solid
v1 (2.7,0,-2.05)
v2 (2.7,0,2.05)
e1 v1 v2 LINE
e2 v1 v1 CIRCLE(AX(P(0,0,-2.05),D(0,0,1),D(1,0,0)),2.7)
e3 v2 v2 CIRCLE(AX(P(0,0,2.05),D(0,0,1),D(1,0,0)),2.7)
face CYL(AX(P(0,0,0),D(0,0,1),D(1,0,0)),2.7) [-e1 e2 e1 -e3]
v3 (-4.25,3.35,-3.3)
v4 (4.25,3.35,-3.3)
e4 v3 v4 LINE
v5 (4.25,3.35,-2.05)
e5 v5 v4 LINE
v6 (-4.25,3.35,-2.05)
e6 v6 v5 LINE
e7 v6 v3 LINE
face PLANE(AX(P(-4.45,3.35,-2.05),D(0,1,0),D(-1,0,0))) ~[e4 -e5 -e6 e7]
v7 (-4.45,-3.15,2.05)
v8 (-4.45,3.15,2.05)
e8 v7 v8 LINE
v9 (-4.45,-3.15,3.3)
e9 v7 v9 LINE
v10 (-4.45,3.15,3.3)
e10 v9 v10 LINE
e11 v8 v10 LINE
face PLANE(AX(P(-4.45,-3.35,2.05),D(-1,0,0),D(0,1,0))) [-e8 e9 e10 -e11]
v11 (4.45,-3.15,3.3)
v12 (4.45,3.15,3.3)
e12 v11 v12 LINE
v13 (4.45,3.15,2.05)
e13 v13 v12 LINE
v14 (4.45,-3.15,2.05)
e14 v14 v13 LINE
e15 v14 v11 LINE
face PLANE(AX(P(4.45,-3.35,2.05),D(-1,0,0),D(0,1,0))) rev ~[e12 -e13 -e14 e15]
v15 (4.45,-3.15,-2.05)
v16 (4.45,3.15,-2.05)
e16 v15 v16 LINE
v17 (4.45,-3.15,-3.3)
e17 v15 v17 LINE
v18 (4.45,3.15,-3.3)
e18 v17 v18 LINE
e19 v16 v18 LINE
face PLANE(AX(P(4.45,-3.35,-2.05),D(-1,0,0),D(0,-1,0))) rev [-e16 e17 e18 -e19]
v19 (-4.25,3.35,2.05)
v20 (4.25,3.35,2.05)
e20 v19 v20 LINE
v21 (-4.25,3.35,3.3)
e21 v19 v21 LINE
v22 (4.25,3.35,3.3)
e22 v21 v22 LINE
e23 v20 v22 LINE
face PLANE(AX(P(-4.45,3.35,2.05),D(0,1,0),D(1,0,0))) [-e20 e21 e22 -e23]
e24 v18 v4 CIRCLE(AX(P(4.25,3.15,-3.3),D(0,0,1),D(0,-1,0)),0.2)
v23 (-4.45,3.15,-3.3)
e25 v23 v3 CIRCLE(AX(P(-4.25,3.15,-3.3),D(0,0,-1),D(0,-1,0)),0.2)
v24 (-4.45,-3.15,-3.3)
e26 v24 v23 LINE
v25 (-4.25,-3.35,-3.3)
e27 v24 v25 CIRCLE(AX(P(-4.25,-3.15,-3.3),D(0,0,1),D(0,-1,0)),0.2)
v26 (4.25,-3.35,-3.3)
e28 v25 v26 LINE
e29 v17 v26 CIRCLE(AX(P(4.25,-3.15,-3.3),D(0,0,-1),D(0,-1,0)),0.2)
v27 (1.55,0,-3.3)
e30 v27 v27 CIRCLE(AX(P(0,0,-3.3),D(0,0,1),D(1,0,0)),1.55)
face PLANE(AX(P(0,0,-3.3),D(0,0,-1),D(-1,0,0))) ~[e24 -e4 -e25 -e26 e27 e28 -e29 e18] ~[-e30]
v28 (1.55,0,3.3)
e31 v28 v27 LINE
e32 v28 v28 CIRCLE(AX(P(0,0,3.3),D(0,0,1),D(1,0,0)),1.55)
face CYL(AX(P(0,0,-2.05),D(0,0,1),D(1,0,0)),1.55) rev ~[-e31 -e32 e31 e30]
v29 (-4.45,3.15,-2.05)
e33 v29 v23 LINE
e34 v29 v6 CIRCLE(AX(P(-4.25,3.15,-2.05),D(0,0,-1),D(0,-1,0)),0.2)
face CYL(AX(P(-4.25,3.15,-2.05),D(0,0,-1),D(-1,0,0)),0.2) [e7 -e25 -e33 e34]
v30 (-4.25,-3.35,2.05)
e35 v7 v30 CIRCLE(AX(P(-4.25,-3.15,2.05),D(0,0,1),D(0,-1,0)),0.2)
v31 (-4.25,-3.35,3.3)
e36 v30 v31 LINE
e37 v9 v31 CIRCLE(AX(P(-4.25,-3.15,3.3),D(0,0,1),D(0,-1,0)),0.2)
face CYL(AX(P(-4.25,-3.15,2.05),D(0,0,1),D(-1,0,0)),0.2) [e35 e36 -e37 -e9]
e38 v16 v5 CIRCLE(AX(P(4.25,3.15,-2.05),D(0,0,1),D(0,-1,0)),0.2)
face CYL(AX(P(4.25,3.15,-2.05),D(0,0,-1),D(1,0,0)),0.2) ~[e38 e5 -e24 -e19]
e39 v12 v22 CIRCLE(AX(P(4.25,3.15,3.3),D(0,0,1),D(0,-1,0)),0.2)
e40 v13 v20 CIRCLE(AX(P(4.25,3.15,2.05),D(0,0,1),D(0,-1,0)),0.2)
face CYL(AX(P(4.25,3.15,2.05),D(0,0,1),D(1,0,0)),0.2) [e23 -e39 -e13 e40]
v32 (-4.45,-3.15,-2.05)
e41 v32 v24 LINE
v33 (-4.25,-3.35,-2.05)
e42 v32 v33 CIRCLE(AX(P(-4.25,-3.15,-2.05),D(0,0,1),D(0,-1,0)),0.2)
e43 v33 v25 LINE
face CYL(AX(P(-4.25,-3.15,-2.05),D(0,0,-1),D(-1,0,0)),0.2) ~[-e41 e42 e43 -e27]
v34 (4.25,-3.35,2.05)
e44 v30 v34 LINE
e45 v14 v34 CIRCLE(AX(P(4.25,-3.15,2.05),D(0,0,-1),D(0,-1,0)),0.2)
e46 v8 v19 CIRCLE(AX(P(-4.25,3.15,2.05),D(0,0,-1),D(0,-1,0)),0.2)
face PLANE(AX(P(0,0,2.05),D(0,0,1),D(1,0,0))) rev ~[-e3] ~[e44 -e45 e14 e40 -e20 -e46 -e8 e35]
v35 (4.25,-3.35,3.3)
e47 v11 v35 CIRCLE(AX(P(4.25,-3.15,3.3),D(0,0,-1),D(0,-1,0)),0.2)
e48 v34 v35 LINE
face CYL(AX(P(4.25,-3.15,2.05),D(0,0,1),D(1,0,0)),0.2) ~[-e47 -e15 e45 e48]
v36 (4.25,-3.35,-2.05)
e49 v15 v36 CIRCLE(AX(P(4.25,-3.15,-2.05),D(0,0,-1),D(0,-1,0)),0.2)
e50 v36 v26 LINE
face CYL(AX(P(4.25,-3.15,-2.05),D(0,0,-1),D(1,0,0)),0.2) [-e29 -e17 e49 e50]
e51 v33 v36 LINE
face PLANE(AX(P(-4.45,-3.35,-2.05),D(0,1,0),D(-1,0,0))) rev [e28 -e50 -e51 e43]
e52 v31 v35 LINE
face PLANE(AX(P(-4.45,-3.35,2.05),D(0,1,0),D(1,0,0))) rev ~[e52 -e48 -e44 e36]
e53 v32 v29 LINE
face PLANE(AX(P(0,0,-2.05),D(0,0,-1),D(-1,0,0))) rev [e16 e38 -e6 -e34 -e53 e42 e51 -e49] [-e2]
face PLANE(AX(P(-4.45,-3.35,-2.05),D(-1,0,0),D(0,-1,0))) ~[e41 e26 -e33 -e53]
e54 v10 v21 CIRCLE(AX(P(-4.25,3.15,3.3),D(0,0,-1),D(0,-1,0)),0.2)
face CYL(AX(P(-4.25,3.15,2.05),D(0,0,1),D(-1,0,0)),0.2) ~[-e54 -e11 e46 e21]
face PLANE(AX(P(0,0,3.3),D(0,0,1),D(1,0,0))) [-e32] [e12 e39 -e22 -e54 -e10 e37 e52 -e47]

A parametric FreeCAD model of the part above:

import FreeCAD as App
import Part
import Sketcher
from FreeCAD import Vector
Q = App.Units.Quantity


def edges_at(feature, points):
    """Names of the edges that pass closest to the given points."""
    edges = feature.Shape.Edges
    near = lambda p: min(range(len(edges)), key=lambda i: edges[i].distToShape(Part.Vertex(*p))[0])
    return sorted({f"Edge{near(p) + 1}" for p in points})


def add_polygon(sketch, points):
    """Adds a closed chain of lines whose ends are joined by coincident constraints."""
    first, n = sketch.GeometryCount, len(points)
    for a, b in zip(points, points[1:] + points[:1]):
        sketch.addGeometry(Part.LineSegment(App.Vector(*a, 0), App.Vector(*b, 0)), False)
    for i in range(n):
        sketch.addConstraint(Sketcher.Constraint("Coincident", first + i, 2, first + (i + 1) % n, 1))

doc = App.newDocument("Part")
body = doc.addObject("PartDesign::Body", "Body")

# Sketch on XY plane
sketch1 = body.newObject("Sketcher::SketchObject", "Sketch")
sketch1.AttachmentSupport = (doc.getObject("XY_Plane"), [""])
sketch1.MapMode = "FlatFace"
sketch1.addGeometry([
    Part.Circle(Vector(0, 0, 0), Vector(0, 0, 1), 2.7),
    Part.Circle(Vector(0, 0, 0), Vector(0, 0, 1), 1.55),
], False)
sketch1.addConstraint([
    Sketcher.Constraint("Coincident", 0, 3, -1, 1),
    Sketcher.Constraint("Coincident", 1, 3, -1, 1),
    Sketcher.Constraint("Diameter", 0, Q("5.4 mm")),
    Sketcher.Constraint("Diameter", 1, Q("3.1 mm")),
])
pad1 = body.newObject("PartDesign::Pad", "Pad")
pad1.Profile = sketch1
pad1.Length = 2.05

# Sketch on XY plane
sketch2 = body.newObject("Sketcher::SketchObject", "Sketch001")
sketch2.AttachmentSupport = (doc.getObject("XY_Plane"), [""])
sketch2.MapMode = "FlatFace"
sketch2.AttachmentOffset = App.Placement(Vector(0, 0, 2.05), App.Rotation())
add_polygon(sketch2, [(-4.45, 3.35), (-4.45, -3.35), (4.45, -3.35), (4.45, 3.35)])  # lines 0-3
sketch2.addGeometry(Part.Circle(Vector(0, 0, 0), Vector(0, 0, 1), 1.55), False)  # 4
sketch2.addConstraint([
    Sketcher.Constraint("Vertical", 0),
    Sketcher.Constraint("Horizontal", 1),
    Sketcher.Constraint("Vertical", 2),
    Sketcher.Constraint("Horizontal", 3),
    Sketcher.Constraint("Coincident", 4, 3, -1, 1),
    Sketcher.Constraint("Symmetric", 0, 2, 2, 2, -1, 1),
    Sketcher.Constraint("Diameter", 4, Q("3.1 mm")),
    Sketcher.Constraint("DistanceX", 1, 1, 1, 2, Q("8.9 mm")),
    Sketcher.Constraint("DistanceY", 0, 2, 0, 1, Q("6.7 mm")),
])
pad2 = body.newObject("PartDesign::Pad", "Pad001")
pad2.Profile = sketch2
pad2.Length = 1.25
doc.recompute()

fillet = body.newObject("PartDesign::Fillet", "Fillet")
fillet.Base = (pad2, edges_at(pad2, [
    (4.45, -3.35, 2.675),
    (-4.45, -3.35, 2.675),
    (-4.45, 3.35, 2.675),
    (4.45, 3.35, 2.675),
]))
fillet.Radius = 0.2
body2 = doc.addObject("PartDesign::Body", "Body001")
doc.recompute()

body2.BaseFeature = body
doc.recompute()

mirroring = doc.addObject("Part::Mirroring", "Mirroring")
mirroring.Source = body
mirroring.Base = Vector(0, 0, 0)
mirroring.Normal = Vector(0, 0, 1)
body3 = doc.addObject("PartDesign::Body", "Body002")
body3.BaseFeature = mirroring
boolean = body2.newObject("PartDesign::Boolean", "Boolean")
boolean.Type = "Fuse"
boolean.addObjects([body3])
doc.recompute()
mirroring.Visibility = False

doc.recompute()
